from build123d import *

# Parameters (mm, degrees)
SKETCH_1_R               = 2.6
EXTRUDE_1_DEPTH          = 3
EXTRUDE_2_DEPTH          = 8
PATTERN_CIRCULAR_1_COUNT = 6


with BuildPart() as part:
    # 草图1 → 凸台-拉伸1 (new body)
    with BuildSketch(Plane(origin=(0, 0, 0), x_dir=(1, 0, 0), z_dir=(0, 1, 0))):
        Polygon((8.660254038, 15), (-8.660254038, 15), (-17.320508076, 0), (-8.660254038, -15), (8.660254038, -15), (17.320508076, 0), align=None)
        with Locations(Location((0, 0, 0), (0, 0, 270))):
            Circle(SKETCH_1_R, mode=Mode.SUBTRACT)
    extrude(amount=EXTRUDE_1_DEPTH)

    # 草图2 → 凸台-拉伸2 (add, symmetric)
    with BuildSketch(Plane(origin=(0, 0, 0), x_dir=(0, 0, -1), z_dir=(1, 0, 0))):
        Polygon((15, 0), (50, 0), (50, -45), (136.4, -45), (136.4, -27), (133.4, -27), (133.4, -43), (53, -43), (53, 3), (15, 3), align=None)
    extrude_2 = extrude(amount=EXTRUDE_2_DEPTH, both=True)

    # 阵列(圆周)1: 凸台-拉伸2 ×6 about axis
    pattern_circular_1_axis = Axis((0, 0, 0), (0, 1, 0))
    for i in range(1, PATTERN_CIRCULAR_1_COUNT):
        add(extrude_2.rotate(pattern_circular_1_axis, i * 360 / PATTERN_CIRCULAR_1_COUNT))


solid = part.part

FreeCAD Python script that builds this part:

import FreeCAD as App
import Part
import Sketcher
from FreeCAD import Vector
Q = App.Units.Quantity


def add_polygon(sketch, points):
    """Adds a closed chain of lines whose ends are joined by coincident constraints."""
    first, n = sketch.GeometryCount, len(points)
    for a, b in zip(points, points[1:] + points[:1]):
        sketch.addGeometry(Part.LineSegment(App.Vector(*a, 0), App.Vector(*b, 0)), False)
    for i in range(n):
        sketch.addConstraint(Sketcher.Constraint("Coincident", first + i, 2, first + (i + 1) % n, 1))

doc = App.newDocument("Part")
body = doc.addObject("PartDesign::Body", "Body")

sketch1 = doc.addObject("Sketcher::SketchObject", "Sketch")
body.addObject(sketch1)
sketch1.AttachmentSupport = (doc.XZ_Plane, [""])
sketch1.MapMode = "FlatFace"
add_polygon(sketch1, [(8.7, -15), (-8.7, -15), (-17.3, 0), (-8.7, 15), (8.7, 15), (17.3, 0)])
sketch1.addGeometry(Part.Circle(Vector(0, 0, 0), Vector(0, 0, 1), 2.6), False)
sketch1.addConstraint([
    Sketcher.Constraint("Horizontal", 0),
    Sketcher.Constraint("Horizontal", 3),
    Sketcher.Constraint("Coincident", 6, 3, -1, 1),
    Sketcher.Constraint("Symmetric", 0, 2, 3, 2, -1, 1),
    Sketcher.Constraint("Symmetric", 1, 2, 4, 2, -1, 1),
    Sketcher.Constraint("PointOnObject", 1, 2, -1),
    Sketcher.Constraint("Parallel", 2, 5),
    Sketcher.Constraint("Vertical", 0, 2, 2, 2),
    Sketcher.Constraint("Diameter", 6, Q("5.2 mm")),
    Sketcher.Constraint("Angle", 1, Q("120 deg")),
    Sketcher.Constraint("DistanceY", 0, 2, -1, 1, Q("15 mm")),
    Sketcher.Constraint("DistanceX", 0, 2, 0, 1, Q("17.320508 mm")),
])
pad1 = doc.addObject("PartDesign::Pad", "Pad")
body.addObject(pad1)
pad1.Profile = sketch1
pad1.Length = 3
pad1.Reversed = True

sketch2 = doc.addObject("Sketcher::SketchObject", "Sketch001")
body.addObject(sketch2)
sketch2.AttachmentSupport = (doc.YZ_Plane, [""])
sketch2.MapMode = "FlatFace"
add_polygon(sketch2, [(0, -15), (0, -50), (-45, -50), (-45, -136.4), (-27, -136.4), (-27, -133.4), (-43, -133.4), (-43, -53), (3, -53), (3, -15)])
sketch2.addConstraint([
    Sketcher.Constraint("Vertical", 0),
    Sketcher.Constraint("Horizontal", 1),
    Sketcher.Constraint("Vertical", 2),
    Sketcher.Constraint("Horizontal", 3),
    Sketcher.Constraint("Vertical", 4),
    Sketcher.Constraint("Horizontal", 5),
    Sketcher.Constraint("Vertical", 6),
    Sketcher.Constraint("Horizontal", 7),
    Sketcher.Constraint("Vertical", 8),
    Sketcher.Constraint("Horizontal", 9),
    Sketcher.Constraint("PointOnObject", 0, 2, -2),
    Sketcher.Constraint("Equal", 9, 4),
    Sketcher.Constraint("DistanceX", 1, 2, 1, 1, Q("45 mm")),
    Sketcher.Constraint("DistanceX", 3, 1, 3, 2, Q("18 mm")),
    Sketcher.Constraint("DistanceX", 5, 2, 5, 1, Q("16 mm")),
    Sketcher.Constraint("DistanceX", 7, 1, 7, 2, Q("46 mm")),
    Sketcher.Constraint("DistanceY", 0, 2, 0, 1, Q("35 mm")),
    Sketcher.Constraint("DistanceY", 8, 1, 8, 2, Q("38 mm")),
    Sketcher.Constraint("DistanceY", 2, 2, 2, 1, Q("86.4 mm")),
    Sketcher.Constraint("DistanceY", 0, 2, -1, 1, Q("50 mm")),
])
pad2 = doc.addObject("PartDesign::Pad", "Pad001")
body.addObject(pad2)
pad2.Profile = sketch2
pad2.Length = 16
pad2.Midplane = True
doc.recompute()

polarpattern = doc.addObject("PartDesign::PolarPattern", "PolarPattern")
body.addObject(polarpattern)
polarpattern.Originals = [pad2]
polarpattern.Axis = (doc.Y_Axis, [""])
polarpattern.Angle = 360
polarpattern.Occurrences = 6
body.Tip = polarpattern

doc.recompute()
